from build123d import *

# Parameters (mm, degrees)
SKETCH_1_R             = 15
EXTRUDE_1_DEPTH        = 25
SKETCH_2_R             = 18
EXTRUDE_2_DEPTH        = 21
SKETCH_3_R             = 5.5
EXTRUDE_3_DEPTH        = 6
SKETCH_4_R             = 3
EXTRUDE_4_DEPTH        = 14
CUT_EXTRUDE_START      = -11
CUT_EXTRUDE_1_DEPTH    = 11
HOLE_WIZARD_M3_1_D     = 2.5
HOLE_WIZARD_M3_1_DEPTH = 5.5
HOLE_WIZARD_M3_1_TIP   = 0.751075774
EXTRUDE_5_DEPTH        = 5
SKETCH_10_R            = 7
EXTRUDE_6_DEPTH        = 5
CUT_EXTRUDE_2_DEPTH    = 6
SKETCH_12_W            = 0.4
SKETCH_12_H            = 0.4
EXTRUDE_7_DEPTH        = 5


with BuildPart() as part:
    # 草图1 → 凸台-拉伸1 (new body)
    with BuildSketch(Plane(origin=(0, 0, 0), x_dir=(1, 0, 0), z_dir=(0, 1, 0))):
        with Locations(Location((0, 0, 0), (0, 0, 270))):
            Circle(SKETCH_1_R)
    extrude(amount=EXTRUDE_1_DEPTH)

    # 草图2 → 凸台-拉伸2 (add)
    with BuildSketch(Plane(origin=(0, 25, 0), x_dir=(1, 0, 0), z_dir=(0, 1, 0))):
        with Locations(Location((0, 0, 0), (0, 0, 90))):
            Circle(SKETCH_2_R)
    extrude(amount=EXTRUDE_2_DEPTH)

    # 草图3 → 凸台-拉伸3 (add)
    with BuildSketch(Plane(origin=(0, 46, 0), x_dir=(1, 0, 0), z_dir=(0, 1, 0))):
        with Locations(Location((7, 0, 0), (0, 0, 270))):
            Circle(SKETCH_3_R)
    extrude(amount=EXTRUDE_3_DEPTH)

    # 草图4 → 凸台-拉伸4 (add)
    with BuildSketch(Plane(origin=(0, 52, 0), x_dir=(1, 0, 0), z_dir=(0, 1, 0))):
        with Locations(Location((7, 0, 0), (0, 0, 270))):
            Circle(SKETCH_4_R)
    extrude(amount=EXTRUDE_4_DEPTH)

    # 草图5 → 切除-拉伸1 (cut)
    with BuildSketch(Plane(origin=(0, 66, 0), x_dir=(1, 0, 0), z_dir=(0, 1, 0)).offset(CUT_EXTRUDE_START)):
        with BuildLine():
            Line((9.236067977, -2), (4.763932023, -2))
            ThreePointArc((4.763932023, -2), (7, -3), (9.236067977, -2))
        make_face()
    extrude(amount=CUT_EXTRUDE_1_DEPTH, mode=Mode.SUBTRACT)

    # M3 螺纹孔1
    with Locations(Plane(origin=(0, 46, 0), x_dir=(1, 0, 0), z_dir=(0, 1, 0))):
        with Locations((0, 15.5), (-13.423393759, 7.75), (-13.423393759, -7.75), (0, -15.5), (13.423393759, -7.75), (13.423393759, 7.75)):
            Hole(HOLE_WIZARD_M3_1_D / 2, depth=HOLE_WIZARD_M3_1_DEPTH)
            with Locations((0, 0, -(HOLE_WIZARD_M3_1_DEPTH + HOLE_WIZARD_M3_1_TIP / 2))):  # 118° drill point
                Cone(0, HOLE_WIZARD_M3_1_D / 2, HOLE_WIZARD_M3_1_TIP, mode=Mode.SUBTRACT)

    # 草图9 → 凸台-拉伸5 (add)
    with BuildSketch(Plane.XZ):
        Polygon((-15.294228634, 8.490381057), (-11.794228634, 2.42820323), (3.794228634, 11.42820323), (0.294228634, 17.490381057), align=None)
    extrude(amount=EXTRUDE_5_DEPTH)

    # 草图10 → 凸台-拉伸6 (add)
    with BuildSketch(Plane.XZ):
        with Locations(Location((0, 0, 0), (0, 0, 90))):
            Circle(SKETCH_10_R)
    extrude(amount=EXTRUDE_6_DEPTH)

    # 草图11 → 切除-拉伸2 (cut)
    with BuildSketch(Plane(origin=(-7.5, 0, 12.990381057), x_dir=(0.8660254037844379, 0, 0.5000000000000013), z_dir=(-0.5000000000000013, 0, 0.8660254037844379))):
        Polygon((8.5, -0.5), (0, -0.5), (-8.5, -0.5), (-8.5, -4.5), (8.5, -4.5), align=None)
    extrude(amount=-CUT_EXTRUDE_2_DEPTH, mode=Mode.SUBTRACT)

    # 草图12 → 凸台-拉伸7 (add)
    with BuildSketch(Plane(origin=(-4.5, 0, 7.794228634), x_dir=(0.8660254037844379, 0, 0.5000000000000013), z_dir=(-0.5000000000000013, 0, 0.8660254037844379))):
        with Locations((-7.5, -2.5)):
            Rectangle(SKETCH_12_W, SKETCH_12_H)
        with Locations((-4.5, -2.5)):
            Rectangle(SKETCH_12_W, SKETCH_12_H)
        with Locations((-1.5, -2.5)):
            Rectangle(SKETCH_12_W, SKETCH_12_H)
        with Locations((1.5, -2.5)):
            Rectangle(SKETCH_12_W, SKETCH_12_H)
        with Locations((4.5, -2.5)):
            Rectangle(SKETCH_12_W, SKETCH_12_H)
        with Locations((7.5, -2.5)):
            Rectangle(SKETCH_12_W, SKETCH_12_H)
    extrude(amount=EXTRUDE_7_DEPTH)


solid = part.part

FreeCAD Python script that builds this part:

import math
import FreeCAD as App
import Part
import Sketcher

V = App.Vector
Q = App.Units.Quantity


def add_polygon(sketch, points):
    """Adds a closed chain of lines whose ends are joined by coincident constraints."""
    first, n = sketch.GeometryCount, len(points)
    for a, b in zip(points, points[1:] + points[:1]):
        sketch.addGeometry(Part.LineSegment(App.Vector(*a, 0), App.Vector(*b, 0)), False)
    for i in range(n):
        sketch.addConstraint(Sketcher.Constraint("Coincident", first + i, 2, first + (i + 1) % n, 1))

doc = App.newDocument("Part")
params = doc.addObject("Spreadsheet::Sheet", "Params")
for row, (alias, value) in enumerate([
    ("sketch1_diameter", "30 mm"),
    ("pad1_length", "25 mm"),
    ("sketch2_diameter", "36 mm"),
    ("pad2_length", "21 mm"),
    ("sketch3_diameter", "11 mm"),
    ("pad3_length", "6 mm"),
    ("sketch4_diameter", "6 mm"),
    ("pad4_length", "14 mm"),
    ("sketch5_radius", "3 mm"),
    ("pocket1_length", "11 mm"),
    ("sketch6_diameter", "2.5 mm"),
    ("hole_diameter", "2.5 mm"),
    ("hole_depth", "5.5 mm"),
    ("sketch7_length", "7 mm"),
    ("sketch7_length2", "18 mm"),
    ("pad5_length", "5 mm"),
    ("sketch8_diameter", "14 mm"),
    ("pad6_length", "5 mm"),
    ("sketch9_width", "17 mm"),
    ("sketch9_height", "4 mm"),
    ("pocket2_length", "6 mm"),
    ("sketch10_width", "0.4 mm"),
    ("pad7_length", "5 mm"),
], start=1):
    params.set(f"A{row}", alias)
    params.set(f"B{row}", "=" + value)
    params.setAlias(f"B{row}", alias)

body = doc.addObject("PartDesign::Body", "Body")

sketch1 = doc.addObject("Sketcher::SketchObject", "Sketch")
body.addObject(sketch1)
sketch1.AttachmentSupport = (doc.XZ_Plane, [""])
sketch1.MapMode = "FlatFace"
sketch1.addGeometry(Part.Circle(V(0, 0, 0), V(0, 0, 1), 15), False)
sketch1.addConstraint(Sketcher.Constraint("Coincident", 0, 3, -1, 1))
sketch1.addConstraint(Sketcher.Constraint("Diameter", 0, 30.0))
sketch1.setExpression("Constraints[1]", "Params.sketch1_diameter")
pad1 = doc.addObject("PartDesign::Pad", "Pad")
body.addObject(pad1)
pad1.Profile = sketch1
pad1.setExpression("Length", "Params.pad1_length")
pad1.Reversed = True

sketch2 = doc.addObject("Sketcher::SketchObject", "Sketch001")
body.addObject(sketch2)
sketch2.AttachmentSupport = (doc.XZ_Plane, [""])
sketch2.MapMode = "FlatFace"
sketch2.AttachmentOffset = App.Placement(V(0, 0, -25), App.Rotation())
sketch2.addGeometry(Part.Circle(V(0, 0, 0), V(0, 0, 1), 18), False)
sketch2.addConstraint(Sketcher.Constraint("Coincident", 0, 3, -1, 1))
sketch2.addConstraint(Sketcher.Constraint("Diameter", 0, 36.0))
sketch2.setExpression("Constraints[1]", "Params.sketch2_diameter")
pad2 = doc.addObject("PartDesign::Pad", "Pad001")
body.addObject(pad2)
pad2.Profile = sketch2
pad2.setExpression("Length", "Params.pad2_length")
pad2.Reversed = True

sketch3 = doc.addObject("Sketcher::SketchObject", "Sketch002")
body.addObject(sketch3)
sketch3.AttachmentSupport = (doc.XZ_Plane, [""])
sketch3.MapMode = "FlatFace"
sketch3.AttachmentOffset = App.Placement(V(0, 0, -46), App.Rotation())
sketch3.addGeometry(Part.Circle(V(7, 0, 0), V(0, 0, 1), 5.5), False)
sketch3.addConstraint(Sketcher.Constraint("PointOnObject", 0, 3, -1))
sketch3.addConstraint(Sketcher.Constraint("Diameter", 0, 11.0))
sketch3.addConstraint(Sketcher.Constraint("DistanceX", -1, 1, 0, 3, 7.0))
sketch3.setExpression("Constraints[1]", "Params.sketch3_diameter")
pad3 = doc.addObject("PartDesign::Pad", "Pad002")
body.addObject(pad3)
pad3.Profile = sketch3
pad3.setExpression("Length", "Params.pad3_length")
pad3.Reversed = True

sketch4 = doc.addObject("Sketcher::SketchObject", "Sketch003")
body.addObject(sketch4)
sketch4.AttachmentSupport = (doc.XZ_Plane, [""])
sketch4.MapMode = "FlatFace"
sketch4.AttachmentOffset = App.Placement(V(0, 0, -52), App.Rotation())
sketch4.addGeometry(Part.Circle(V(7, 0, 0), V(0, 0, 1), 3), False)
sketch4.addConstraint(Sketcher.Constraint("PointOnObject", 0, 3, -1))
sketch4.addConstraint(Sketcher.Constraint("Diameter", 0, 6.0))
sketch4.addConstraint(Sketcher.Constraint("DistanceX", -1, 1, 0, 3, 7.0))
sketch4.setExpression("Constraints[1]", "Params.sketch4_diameter")
pad4 = doc.addObject("PartDesign::Pad", "Pad003")
body.addObject(pad4)
pad4.Profile = sketch4
pad4.setExpression("Length", "Params.pad4_length")
pad4.Reversed = True

sketch5 = doc.addObject("Sketcher::SketchObject", "Sketch004")
body.addObject(sketch5)
sketch5.AttachmentSupport = (doc.XZ_Plane, [""])
sketch5.MapMode = "FlatFace"
sketch5.AttachmentOffset = App.Placement(V(0, 0, -55), App.Rotation())
sketch5.addGeometry(Part.LineSegment(V(9.236068, 2, 0), V(4.763932, 2, 0)), False)
sketch5.addGeometry(Part.ArcOfCircle(Part.Circle(V(7, 0, 0), V(0, 0, 1), 3), math.radians(41.810315), math.radians(138.189685)), False)
sketch5.addConstraint(Sketcher.Constraint("Coincident", 0, 1, 1, 1))
sketch5.addConstraint(Sketcher.Constraint("Coincident", 1, 2, 0, 2))
sketch5.addConstraint(Sketcher.Constraint("Horizontal", 0))
sketch5.addConstraint(Sketcher.Constraint("PointOnObject", 1, 3, -1))
sketch5.addConstraint(Sketcher.Constraint("Radius", 1, 3.0))
sketch5.addConstraint(Sketcher.Constraint("DistanceX", -1, 1, 1, 3, 7.0))
sketch5.addConstraint(Sketcher.Constraint("DistanceY", -1, 1, 0, 1, 2.0))
sketch5.setExpression("Constraints[4]", "Params.sketch5_radius")
pocket1 = doc.addObject("PartDesign::Pocket", "Pocket")
body.addObject(pocket1)
pocket1.Profile = sketch5
pocket1.setExpression("Length", "Params.pocket1_length")

sketch6 = doc.addObject("Sketcher::SketchObject", "Sketch005")
body.addObject(sketch6)
sketch6.AttachmentSupport = (doc.XZ_Plane, [""])
sketch6.MapMode = "FlatFace"
sketch6.AttachmentOffset = App.Placement(V(0, 0, -46), App.Rotation())
sketch6.addGeometry(Part.Circle(V(0, -15.5, 0), V(0, 0, 1), 1.25), False)
sketch6.addGeometry(Part.Circle(V(-13.423394, -7.75, 0), V(0, 0, 1), 1.25), False)
sketch6.addGeometry(Part.Circle(V(-13.423394, 7.75, 0), V(0, 0, 1), 1.25), False)
sketch6.addGeometry(Part.Circle(V(0, 15.5, 0), V(0, 0, 1), 1.25), False)
sketch6.addGeometry(Part.Circle(V(13.423394, 7.75, 0), V(0, 0, 1), 1.25), False)
sketch6.addGeometry(Part.Circle(V(13.423394, -7.75, 0), V(0, 0, 1), 1.25), False)
sketch6.addConstraint(Sketcher.Constraint("Equal", 0, 1))
sketch6.addConstraint(Sketcher.Constraint("Equal", 1, 2))
sketch6.addConstraint(Sketcher.Constraint("Equal", 2, 3))
sketch6.addConstraint(Sketcher.Constraint("Equal", 3, 4))
sketch6.addConstraint(Sketcher.Constraint("Equal", 4, 5))
sketch6.addConstraint(Sketcher.Constraint("Symmetric", 0, 3, 3, 3, -1, 1))
sketch6.addConstraint(Sketcher.Constraint("Symmetric", 1, 3, 4, 3, -1, 1))
sketch6.addConstraint(Sketcher.Constraint("Symmetric", 2, 3, 5, 3, -1, 1))
sketch6.addConstraint(Sketcher.Constraint("Symmetric", 2, 3, 4, 3, -2))
sketch6.addConstraint(Sketcher.Constraint("PointOnObject", 0, 3, -2))
sketch6.addConstraint(Sketcher.Constraint("Diameter", 0, 2.5))
sketch6.addConstraint(Sketcher.Constraint("DistanceY", 0, 3, 3, 3, 31.0))
sketch6.addConstraint(Sketcher.Constraint("DistanceY", 1, 3, 2, 3, 15.5))
sketch6.addConstraint(Sketcher.Constraint("DistanceX", 1, 3, -1, 1, 13.423394))
sketch6.setExpression("Constraints[10]", "Params.sketch6_diameter")
doc.recompute()
hole = doc.addObject("PartDesign::Hole", "Hole")
body.addObject(hole)
hole.Profile = sketch6
hole.ThreadType = "None"
hole.setExpression("Diameter", "Params.hole_diameter")
hole.DepthType = "Dimension"
hole.setExpression("Depth", "Params.hole_depth")
hole.DrillPoint = "Angled"
hole.DrillPointAngle = 118
hole.Reversed = True

sketch7 = doc.addObject("Sketcher::SketchObject", "Sketch006")
body.addObject(sketch7)
sketch7.AttachmentSupport = (doc.XZ_Plane, [""])
sketch7.MapMode = "FlatFace"
add_polygon(sketch7, [(-15.294229, 8.490381), (-11.794229, 2.428203), (3.794229, 11.428203), (0.294229, 17.490381)])
sketch7.addConstraint(Sketcher.Constraint("Perpendicular", 0, 1))
sketch7.addConstraint(Sketcher.Constraint("Perpendicular", 1, 2))
sketch7.addConstraint(Sketcher.Constraint("Perpendicular", 2, 3))
sketch7.addConstraint(Sketcher.Constraint("Angle", 0, Q("-60 deg")))
sketch7.addConstraint(Sketcher.Constraint("Distance", 0, 7.0))
sketch7.addConstraint(Sketcher.Constraint("Distance", 1, 18.0))
sketch7.addConstraint(Sketcher.Constraint("DistanceX", 0, 2, -1, 1, 11.794229))
sketch7.addConstraint(Sketcher.Constraint("DistanceY", -1, 1, 2, 2, 17.490381))
sketch7.setExpression("Constraints[8]", "Params.sketch7_length")
sketch7.setExpression("Constraints[9]", "Params.sketch7_length2")
pad5 = doc.addObject("PartDesign::Pad", "Pad004")
body.addObject(pad5)
pad5.Profile = sketch7
pad5.setExpression("Length", "Params.pad5_length")

sketch8 = doc.addObject("Sketcher::SketchObject", "Sketch007")
body.addObject(sketch8)
sketch8.AttachmentSupport = (doc.XZ_Plane, [""])
sketch8.MapMode = "FlatFace"
sketch8.addGeometry(Part.Circle(V(0, 0, 0), V(0, 0, 1), 7), False)
sketch8.addConstraint(Sketcher.Constraint("Coincident", 0, 3, -1, 1))
sketch8.addConstraint(Sketcher.Constraint("Diameter", 0, 14.0))
sketch8.setExpression("Constraints[1]", "Params.sketch8_diameter")
pad6 = doc.addObject("PartDesign::Pad", "Pad005")
body.addObject(pad6)
pad6.Profile = sketch8
pad6.setExpression("Length", "Params.pad6_length")

sketch9 = doc.addObject("Sketcher::SketchObject", "Sketch008")
body.addObject(sketch9)
sketch9.Placement = App.Placement(V(-7.5, 0, 12.990381), App.Rotation(V(0.866025404, 0, 0.5), V(0, 1, 0), V(-0.5, 0, 0.866025404), "ZXY"))
add_polygon(sketch9, [(8.5, -0.5), (-8.5, -0.5), (-8.5, -4.5), (8.5, -4.5)])
sketch9.addConstraint(Sketcher.Constraint("Horizontal", 0))
sketch9.addConstraint(Sketcher.Constraint("Vertical", 1))
sketch9.addConstraint(Sketcher.Constraint("Horizontal", 2))
sketch9.addConstraint(Sketcher.Constraint("Vertical", 3))
sketch9.addConstraint(Sketcher.Constraint("DistanceX", 0, 2, 0, 1, 17.0))
sketch9.addConstraint(Sketcher.Constraint("DistanceY", 1, 2, 1, 1, 4.0))
sketch9.addConstraint(Sketcher.Constraint("DistanceX", 0, 2, -1, 1, 8.5))
sketch9.addConstraint(Sketcher.Constraint("DistanceY", 0, 2, -1, 1, 0.5))
sketch9.setExpression("Constraints[8]", "Params.sketch9_width")
sketch9.setExpression("Constraints[9]", "Params.sketch9_height")
pocket2 = doc.addObject("PartDesign::Pocket", "Pocket001")
body.addObject(pocket2)
pocket2.Profile = sketch9
pocket2.setExpression("Length", "Params.pocket2_length")

sketch10 = doc.addObject("Sketcher::SketchObject", "Sketch009")
body.addObject(sketch10)
sketch10.Placement = App.Placement(V(-4.5, 0, 7.794229), App.Rotation(V(0.866025404, 0, 0.5), V(0, 1, 0), V(-0.5, 0, 0.866025404), "ZXY"))
add_polygon(sketch10, [(-7.7, -2.3), (-7.7, -2.7), (-7.3, -2.7), (-7.3, -2.3)])
add_polygon(sketch10, [(-4.7, -2.3), (-4.7, -2.7), (-4.3, -2.7), (-4.3, -2.3)])
add_polygon(sketch10, [(-1.7, -2.3), (-1.7, -2.7), (-1.3, -2.7), (-1.3, -2.3)])
add_polygon(sketch10, [(1.3, -2.3), (1.3, -2.7), (1.7, -2.7), (1.7, -2.3)])
add_polygon(sketch10, [(4.3, -2.3), (4.3, -2.7), (4.7, -2.7), (4.7, -2.3)])
add_polygon(sketch10, [(7.3, -2.3), (7.3, -2.7), (7.7, -2.7), (7.7, -2.3)])
sketch10.addConstraint(Sketcher.Constraint("Vertical", 0))
sketch10.addConstraint(Sketcher.Constraint("Horizontal", 1))
sketch10.addConstraint(Sketcher.Constraint("Vertical", 2))
sketch10.addConstraint(Sketcher.Constraint("Horizontal", 3))
sketch10.addConstraint(Sketcher.Constraint("Vertical", 4))
sketch10.addConstraint(Sketcher.Constraint("Horizontal", 5))
sketch10.addConstraint(Sketcher.Constraint("Vertical", 6))
sketch10.addConstraint(Sketcher.Constraint("Horizontal", 7))
sketch10.addConstraint(Sketcher.Constraint("Vertical", 8))
sketch10.addConstraint(Sketcher.Constraint("Horizontal", 9))
sketch10.addConstraint(Sketcher.Constraint("Vertical", 10))
sketch10.addConstraint(Sketcher.Constraint("Horizontal", 11))
sketch10.addConstraint(Sketcher.Constraint("Vertical", 12))
sketch10.addConstraint(Sketcher.Constraint("Horizontal", 13))
sketch10.addConstraint(Sketcher.Constraint("Vertical", 14))
sketch10.addConstraint(Sketcher.Constraint("Horizontal", 15))
sketch10.addConstraint(Sketcher.Constraint("Vertical", 16))
sketch10.addConstraint(Sketcher.Constraint("Horizontal", 17))
sketch10.addConstraint(Sketcher.Constraint("Vertical", 18))
sketch10.addConstraint(Sketcher.Constraint("Horizontal", 19))
sketch10.addConstraint(Sketcher.Constraint("Vertical", 20))
sketch10.addConstraint(Sketcher.Constraint("Horizontal", 21))
sketch10.addConstraint(Sketcher.Constraint("Vertical", 22))
sketch10.addConstraint(Sketcher.Constraint("Horizontal", 23))
sketch10.addConstraint(Sketcher.Constraint("Symmetric", 9, 2, 12, 2, -2))
sketch10.addConstraint(Sketcher.Constraint("Symmetric", 11, 2, 14, 2, -2))
sketch10.addConstraint(Sketcher.Constraint("Symmetric", 5, 2, 16, 2, -2))
sketch10.addConstraint(Sketcher.Constraint("Symmetric", 7, 2, 18, 2, -2))
sketch10.addConstraint(Sketcher.Constraint("Symmetric", 1, 2, 20, 2, -2))
sketch10.addConstraint(Sketcher.Constraint("Symmetric", 3, 2, 22, 2, -2))
sketch10.addConstraint(Sketcher.Constraint("Horizontal", 1, 2, 4, 2))
sketch10.addConstraint(Sketcher.Constraint("Horizontal", 3, 2, 6, 2))
sketch10.addConstraint(Sketcher.Constraint("Horizontal", 5, 2, 8, 2))
sketch10.addConstraint(Sketcher.Constraint("Horizontal", 7, 2, 10, 2))
sketch10.addConstraint(Sketcher.Constraint("Equal", 3, 5))
sketch10.addConstraint(Sketcher.Constraint("Equal", 7, 9))
sketch10.addConstraint(Sketcher.Constraint("Equal", 23, 0))
sketch10.addConstraint(Sketcher.Constraint("DistanceX", 1, 1, 1, 2, 0.4))
sketch10.addConstraint(Sketcher.Constraint("DistanceX", 0, 2, 4, 2, 3.0))
sketch10.addConstraint(Sketcher.Constraint("DistanceX", 4, 2, 8, 2, 3.0))
sketch10.addConstraint(Sketcher.Constraint("DistanceX", 8, 2, 12, 2, 3.0))
sketch10.addConstraint(Sketcher.Constraint("DistanceY", 0, 2, -1, 1, 2.7))
sketch10.setExpression("Constraints[61]", "Params.sketch10_width")
pad7 = doc.addObject("PartDesign::Pad", "Pad006")
body.addObject(pad7)
pad7.Profile = sketch10
pad7.setExpression("Length", "Params.pad7_length")

doc.recompute()
